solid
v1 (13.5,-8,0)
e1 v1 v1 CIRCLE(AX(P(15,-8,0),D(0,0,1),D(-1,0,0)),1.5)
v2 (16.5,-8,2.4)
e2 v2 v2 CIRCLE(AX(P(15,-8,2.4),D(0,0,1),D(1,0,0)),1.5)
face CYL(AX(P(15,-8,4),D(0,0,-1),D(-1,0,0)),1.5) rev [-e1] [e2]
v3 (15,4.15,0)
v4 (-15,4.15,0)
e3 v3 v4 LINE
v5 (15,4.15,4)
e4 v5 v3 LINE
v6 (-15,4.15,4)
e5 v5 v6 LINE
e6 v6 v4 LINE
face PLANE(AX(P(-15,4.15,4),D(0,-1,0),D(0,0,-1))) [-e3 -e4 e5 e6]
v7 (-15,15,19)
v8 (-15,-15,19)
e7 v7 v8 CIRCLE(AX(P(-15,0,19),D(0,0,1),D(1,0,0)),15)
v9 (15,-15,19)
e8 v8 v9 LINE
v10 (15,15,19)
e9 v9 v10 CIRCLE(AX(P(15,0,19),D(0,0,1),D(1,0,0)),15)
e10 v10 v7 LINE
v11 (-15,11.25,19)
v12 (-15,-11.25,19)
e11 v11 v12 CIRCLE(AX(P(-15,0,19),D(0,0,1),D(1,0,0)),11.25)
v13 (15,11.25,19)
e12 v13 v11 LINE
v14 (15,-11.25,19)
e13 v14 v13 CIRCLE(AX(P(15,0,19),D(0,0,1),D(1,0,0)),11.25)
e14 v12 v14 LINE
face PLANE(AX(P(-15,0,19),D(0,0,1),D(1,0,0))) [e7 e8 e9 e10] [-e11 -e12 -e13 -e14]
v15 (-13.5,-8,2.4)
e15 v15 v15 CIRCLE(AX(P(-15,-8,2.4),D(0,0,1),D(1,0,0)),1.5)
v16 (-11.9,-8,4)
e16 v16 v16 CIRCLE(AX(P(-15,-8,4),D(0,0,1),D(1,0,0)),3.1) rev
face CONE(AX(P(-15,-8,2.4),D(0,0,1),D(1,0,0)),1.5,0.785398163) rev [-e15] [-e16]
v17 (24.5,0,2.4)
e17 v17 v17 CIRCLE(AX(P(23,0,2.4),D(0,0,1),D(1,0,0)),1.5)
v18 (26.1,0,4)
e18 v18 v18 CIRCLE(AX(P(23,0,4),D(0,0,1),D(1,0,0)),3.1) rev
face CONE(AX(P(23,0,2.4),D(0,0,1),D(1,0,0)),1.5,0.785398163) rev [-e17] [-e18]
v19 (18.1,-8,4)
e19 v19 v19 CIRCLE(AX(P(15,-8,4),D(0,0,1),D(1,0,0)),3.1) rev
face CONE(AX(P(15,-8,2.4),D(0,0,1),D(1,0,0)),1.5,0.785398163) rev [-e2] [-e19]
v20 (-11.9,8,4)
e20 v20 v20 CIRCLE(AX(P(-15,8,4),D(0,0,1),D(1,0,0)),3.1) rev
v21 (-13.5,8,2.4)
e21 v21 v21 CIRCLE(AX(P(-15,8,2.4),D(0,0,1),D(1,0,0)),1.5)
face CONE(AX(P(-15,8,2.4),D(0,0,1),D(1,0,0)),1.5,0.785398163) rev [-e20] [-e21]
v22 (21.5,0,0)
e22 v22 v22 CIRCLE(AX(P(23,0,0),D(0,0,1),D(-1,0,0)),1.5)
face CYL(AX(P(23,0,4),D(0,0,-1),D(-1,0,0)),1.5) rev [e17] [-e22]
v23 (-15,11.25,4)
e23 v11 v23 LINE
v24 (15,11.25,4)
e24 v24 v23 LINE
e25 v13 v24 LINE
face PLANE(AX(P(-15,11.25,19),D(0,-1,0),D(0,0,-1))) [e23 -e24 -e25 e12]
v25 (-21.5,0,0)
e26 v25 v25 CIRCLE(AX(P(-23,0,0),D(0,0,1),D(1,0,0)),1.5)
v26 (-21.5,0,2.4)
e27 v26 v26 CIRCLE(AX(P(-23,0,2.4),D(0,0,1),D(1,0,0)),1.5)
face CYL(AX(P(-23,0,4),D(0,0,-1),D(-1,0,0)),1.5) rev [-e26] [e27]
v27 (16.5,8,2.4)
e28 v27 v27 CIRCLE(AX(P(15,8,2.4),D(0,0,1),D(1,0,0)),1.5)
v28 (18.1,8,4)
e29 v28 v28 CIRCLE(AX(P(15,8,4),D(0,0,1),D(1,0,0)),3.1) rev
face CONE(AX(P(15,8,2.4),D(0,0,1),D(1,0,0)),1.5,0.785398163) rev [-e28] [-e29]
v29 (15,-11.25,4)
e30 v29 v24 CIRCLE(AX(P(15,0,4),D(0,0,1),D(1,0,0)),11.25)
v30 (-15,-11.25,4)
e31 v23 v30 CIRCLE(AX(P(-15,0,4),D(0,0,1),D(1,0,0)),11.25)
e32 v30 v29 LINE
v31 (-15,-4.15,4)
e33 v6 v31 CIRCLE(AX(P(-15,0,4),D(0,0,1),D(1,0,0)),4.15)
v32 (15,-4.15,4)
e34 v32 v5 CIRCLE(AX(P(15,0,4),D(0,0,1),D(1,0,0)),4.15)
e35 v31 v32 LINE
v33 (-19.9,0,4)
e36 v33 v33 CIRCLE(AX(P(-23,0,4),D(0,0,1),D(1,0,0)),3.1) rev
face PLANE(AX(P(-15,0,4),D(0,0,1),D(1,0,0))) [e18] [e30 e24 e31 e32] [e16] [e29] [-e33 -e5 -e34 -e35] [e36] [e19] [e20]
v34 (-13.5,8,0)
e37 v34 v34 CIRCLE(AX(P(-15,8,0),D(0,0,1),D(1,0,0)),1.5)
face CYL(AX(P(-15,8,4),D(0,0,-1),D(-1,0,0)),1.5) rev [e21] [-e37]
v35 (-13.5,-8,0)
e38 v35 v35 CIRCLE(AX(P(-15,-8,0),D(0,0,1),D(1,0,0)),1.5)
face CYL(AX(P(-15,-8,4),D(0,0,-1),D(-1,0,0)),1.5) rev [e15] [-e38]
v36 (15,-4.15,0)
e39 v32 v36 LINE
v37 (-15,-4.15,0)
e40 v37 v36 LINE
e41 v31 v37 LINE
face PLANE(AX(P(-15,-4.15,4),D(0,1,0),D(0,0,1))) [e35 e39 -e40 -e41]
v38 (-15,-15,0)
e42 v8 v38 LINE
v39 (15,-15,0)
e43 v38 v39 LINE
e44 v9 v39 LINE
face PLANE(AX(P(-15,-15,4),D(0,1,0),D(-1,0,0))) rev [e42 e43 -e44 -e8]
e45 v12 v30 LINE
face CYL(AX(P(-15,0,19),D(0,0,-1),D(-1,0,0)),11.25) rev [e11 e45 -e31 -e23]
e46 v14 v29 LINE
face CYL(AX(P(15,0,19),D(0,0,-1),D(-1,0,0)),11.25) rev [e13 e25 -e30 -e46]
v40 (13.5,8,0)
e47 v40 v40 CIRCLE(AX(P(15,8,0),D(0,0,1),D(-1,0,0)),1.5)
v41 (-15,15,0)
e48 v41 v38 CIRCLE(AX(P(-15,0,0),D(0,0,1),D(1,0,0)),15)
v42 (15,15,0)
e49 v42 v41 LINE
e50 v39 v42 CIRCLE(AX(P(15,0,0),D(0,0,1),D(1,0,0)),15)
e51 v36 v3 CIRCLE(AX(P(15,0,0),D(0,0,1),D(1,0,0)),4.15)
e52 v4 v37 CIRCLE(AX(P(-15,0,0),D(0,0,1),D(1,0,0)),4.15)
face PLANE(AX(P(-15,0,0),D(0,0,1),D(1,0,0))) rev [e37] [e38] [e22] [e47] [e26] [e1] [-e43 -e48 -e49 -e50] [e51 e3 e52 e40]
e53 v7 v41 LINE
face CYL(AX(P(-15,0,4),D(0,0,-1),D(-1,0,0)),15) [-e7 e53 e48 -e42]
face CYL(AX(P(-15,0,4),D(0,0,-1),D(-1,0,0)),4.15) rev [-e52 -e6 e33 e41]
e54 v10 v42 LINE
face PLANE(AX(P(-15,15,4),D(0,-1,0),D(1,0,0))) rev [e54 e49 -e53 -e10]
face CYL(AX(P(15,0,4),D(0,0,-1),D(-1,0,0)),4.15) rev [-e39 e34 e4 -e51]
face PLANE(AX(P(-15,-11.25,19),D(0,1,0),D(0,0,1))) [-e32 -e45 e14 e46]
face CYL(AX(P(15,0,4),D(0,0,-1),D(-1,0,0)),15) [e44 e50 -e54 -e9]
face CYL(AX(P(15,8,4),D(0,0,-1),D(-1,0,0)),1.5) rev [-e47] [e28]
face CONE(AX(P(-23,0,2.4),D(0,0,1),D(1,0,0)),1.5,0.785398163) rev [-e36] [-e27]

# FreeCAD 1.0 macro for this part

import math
import FreeCAD as App
import Part
import Sketcher
from FreeCAD import Vector
Q = App.Units.Quantity


def edges_at(feature, points):
    """Names of the edges that pass closest to the given points."""
    edges = feature.Shape.Edges
    near = lambda p: min(range(len(edges)), key=lambda i: edges[i].distToShape(Part.Vertex(*p))[0])
    return sorted({f"Edge{near(p) + 1}" for p in points})

doc = App.newDocument("Part")
body = doc.addObject("PartDesign::Body", "Body")

# Sketch on XY plane
sketch1 = body.newObject("Sketcher::SketchObject", "Sketch")
sketch1.AttachmentSupport = (doc.getObject("XY_Plane"), [""])
sketch1.MapMode = "FlatFace"
sketch1.addGeometry(Part.LineSegment(Vector(15, 15, 0), Vector(-15, 15, 0)), False)
sketch1.addGeometry(Part.ArcOfCircle(Part.Circle(Vector(-15, 0, 0), Vector(0, 0, 1), 15), math.radians(90), math.radians(270)), False)
sketch1.addGeometry(Part.LineSegment(Vector(-15, -15, 0), Vector(15, -15, 0)), False)
sketch1.addGeometry(Part.ArcOfCircle(Part.Circle(Vector(15, 0, 0), Vector(0, 0, 1), 15), math.radians(-90), math.radians(90)), False)
sketch1.addGeometry(Part.Circle(Vector(15, -8, 0), Vector(0, 0, 1), 1.5), False)
sketch1.addGeometry(Part.Circle(Vector(-15, -8, 0), Vector(0, 0, 1), 1.5), False)
sketch1.addGeometry(Part.Circle(Vector(23, 0, 0), Vector(0, 0, 1), 1.5), False)
sketch1.addGeometry(Part.LineSegment(Vector(-15, 4.15, 0), Vector(15, 4.15, 0)), False)
sketch1.addGeometry(Part.ArcOfCircle(Part.Circle(Vector(15, 0, 0), Vector(0, 0, 1), 4.15), math.radians(-90), math.radians(90)), False)
sketch1.addGeometry(Part.LineSegment(Vector(15, -4.15, 0), Vector(-15, -4.15, 0)), False)
sketch1.addGeometry(Part.ArcOfCircle(Part.Circle(Vector(-15, 0, 0), Vector(0, 0, 1), 4.15), math.radians(90), math.radians(270)), False)
sketch1.addGeometry(Part.Circle(Vector(15, 8, 0), Vector(0, 0, 1), 1.5), False)
sketch1.addGeometry(Part.Circle(Vector(-23, 0, 0), Vector(0, 0, 1), 1.5), False)
sketch1.addGeometry(Part.Circle(Vector(-15, 8, 0), Vector(0, 0, 1), 1.5), False)
sketch1.addConstraint(Sketcher.Constraint("Tangent", 0, 2, 1, 1))
sketch1.addConstraint(Sketcher.Constraint("Tangent", 1, 2, 2, 1))
sketch1.addConstraint(Sketcher.Constraint("Tangent", 2, 2, 3, 1))
sketch1.addConstraint(Sketcher.Constraint("Tangent", 3, 2, 0, 1))
sketch1.addConstraint(Sketcher.Constraint("Tangent", 7, 2, 8, 2))
sketch1.addConstraint(Sketcher.Constraint("Tangent", 8, 1, 9, 1))
sketch1.addConstraint(Sketcher.Constraint("Tangent", 9, 2, 10, 2))
sketch1.addConstraint(Sketcher.Constraint("Tangent", 10, 1, 7, 1))
sketch1.addConstraint(Sketcher.Constraint("Horizontal", 0))
sketch1.addConstraint(Sketcher.Constraint("Horizontal", 2))
sketch1.addConstraint(Sketcher.Constraint("Horizontal", 7))
sketch1.addConstraint(Sketcher.Constraint("Horizontal", 9))
sketch1.addConstraint(Sketcher.Constraint("Coincident", 8, 3, 3, 3))
sketch1.addConstraint(Sketcher.Constraint("Equal", 4, 5))
sketch1.addConstraint(Sketcher.Constraint("Equal", 5, 6))
sketch1.addConstraint(Sketcher.Constraint("Equal", 6, 11))
sketch1.addConstraint(Sketcher.Constraint("Equal", 11, 12))
sketch1.addConstraint(Sketcher.Constraint("Equal", 12, 13))
sketch1.addConstraint(Sketcher.Constraint("Symmetric", 1, 3, 3, 3, -1, 1))
sketch1.addConstraint(Sketcher.Constraint("Symmetric", 5, 3, 11, 3, -1, 1))
sketch1.addConstraint(Sketcher.Constraint("Symmetric", 6, 3, 12, 3, -1, 1))
sketch1.addConstraint(Sketcher.Constraint("Symmetric", 4, 3, 13, 3, -1, 1))
sketch1.addConstraint(Sketcher.Constraint("Symmetric", 4, 3, 5, 3, -2))
sketch1.addConstraint(Sketcher.Constraint("PointOnObject", 6, 3, -1))
sketch1.addConstraint(Sketcher.Constraint("Vertical", 3, 3, 4, 3))
sketch1.addConstraint(Sketcher.Constraint("Vertical", 5, 3, 10, 3))
sketch1.addConstraint(Sketcher.Constraint("Diameter", 4, Q("3 mm")))
sketch1.addConstraint(Sketcher.Constraint("Radius", 1, Q("15 mm")))
sketch1.addConstraint(Sketcher.Constraint("DistanceX", 0, 2, 0, 1, Q("30 mm")))
sketch1.addConstraint(Sketcher.Constraint("Radius", 8, Q("4.15 mm")))
sketch1.addConstraint(Sketcher.Constraint("DistanceY", 4, 3, -1, 1, Q("8 mm")))
sketch1.addConstraint(Sketcher.Constraint("DistanceX", -1, 1, 6, 3, Q("23 mm")))
pad1 = body.newObject("PartDesign::Pad", "Pad")
pad1.Profile = sketch1
pad1.Length = 4

# Sketch on XY plane
sketch2 = body.newObject("Sketcher::SketchObject", "Sketch001")
sketch2.AttachmentSupport = (doc.getObject("XY_Plane"), [""])
sketch2.MapMode = "FlatFace"
sketch2.AttachmentOffset = App.Placement(Vector(0, 0, 4), App.Rotation())
sketch2.addGeometry(Part.LineSegment(Vector(-15, -15, 0), Vector(15, -15, 0)), False)
sketch2.addGeometry(Part.ArcOfCircle(Part.Circle(Vector(15, 0, 0), Vector(0, 0, 1), 15), math.radians(-90), math.radians(90)), False)
sketch2.addGeometry(Part.LineSegment(Vector(15, 15, 0), Vector(-15, 15, 0)), False)
sketch2.addGeometry(Part.ArcOfCircle(Part.Circle(Vector(-15, 0, 0), Vector(0, 0, 1), 15), math.radians(90), math.radians(270)), False)
sketch2.addGeometry(Part.ArcOfCircle(Part.Circle(Vector(-15, 0, 0), Vector(0, 0, 1), 11.25), math.radians(90), math.radians(270)), False)
sketch2.addGeometry(Part.LineSegment(Vector(-15, 11.25, 0), Vector(15, 11.25, 0)), False)
sketch2.addGeometry(Part.ArcOfCircle(Part.Circle(Vector(15, 0, 0), Vector(0, 0, 1), 11.25), math.radians(-90), math.radians(90)), False)
sketch2.addGeometry(Part.LineSegment(Vector(15, -11.25, 0), Vector(-15, -11.25, 0)), False)
sketch2.addConstraint(Sketcher.Constraint("Tangent", 0, 2, 1, 1))
sketch2.addConstraint(Sketcher.Constraint("Tangent", 1, 2, 2, 1))
sketch2.addConstraint(Sketcher.Constraint("Tangent", 2, 2, 3, 1))
sketch2.addConstraint(Sketcher.Constraint("Tangent", 3, 2, 0, 1))
sketch2.addConstraint(Sketcher.Constraint("Tangent", 4, 1, 5, 1))
sketch2.addConstraint(Sketcher.Constraint("Tangent", 5, 2, 6, 2))
sketch2.addConstraint(Sketcher.Constraint("Tangent", 6, 1, 7, 1))
sketch2.addConstraint(Sketcher.Constraint("Tangent", 7, 2, 4, 2))
sketch2.addConstraint(Sketcher.Constraint("Horizontal", 0))
sketch2.addConstraint(Sketcher.Constraint("Horizontal", 2))
sketch2.addConstraint(Sketcher.Constraint("Horizontal", 5))
sketch2.addConstraint(Sketcher.Constraint("Horizontal", 7))
sketch2.addConstraint(Sketcher.Constraint("Coincident", 4, 3, 3, 3))
sketch2.addConstraint(Sketcher.Constraint("Symmetric", 1, 3, 3, 3, -1, 1))
sketch2.addConstraint(Sketcher.Constraint("Vertical", 6, 3, 0, 2))
sketch2.addConstraint(Sketcher.Constraint("Radius", 1, Q("15 mm")))
sketch2.addConstraint(Sketcher.Constraint("DistanceX", 0, 1, 0, 2, Q("30 mm")))
sketch2.addConstraint(Sketcher.Constraint("Radius", 4, Q("11.25 mm")))
pad2 = body.newObject("PartDesign::Pad", "Pad001")
pad2.Profile = sketch2
pad2.Length = 15
doc.recompute()

chamfer = body.newObject("PartDesign::Chamfer", "Chamfer")
chamfer.Base = (pad2, edges_at(pad2, [
    (-16.5, 8, 4),
    (-24.5, 0, 4),
    (-16.5, -8, 4),
    (13.5, -8, 4),
    (21.5, 0, 4),
    (13.5, 8, 4),
]))
chamfer.Size = 1.6

doc.recompute()
